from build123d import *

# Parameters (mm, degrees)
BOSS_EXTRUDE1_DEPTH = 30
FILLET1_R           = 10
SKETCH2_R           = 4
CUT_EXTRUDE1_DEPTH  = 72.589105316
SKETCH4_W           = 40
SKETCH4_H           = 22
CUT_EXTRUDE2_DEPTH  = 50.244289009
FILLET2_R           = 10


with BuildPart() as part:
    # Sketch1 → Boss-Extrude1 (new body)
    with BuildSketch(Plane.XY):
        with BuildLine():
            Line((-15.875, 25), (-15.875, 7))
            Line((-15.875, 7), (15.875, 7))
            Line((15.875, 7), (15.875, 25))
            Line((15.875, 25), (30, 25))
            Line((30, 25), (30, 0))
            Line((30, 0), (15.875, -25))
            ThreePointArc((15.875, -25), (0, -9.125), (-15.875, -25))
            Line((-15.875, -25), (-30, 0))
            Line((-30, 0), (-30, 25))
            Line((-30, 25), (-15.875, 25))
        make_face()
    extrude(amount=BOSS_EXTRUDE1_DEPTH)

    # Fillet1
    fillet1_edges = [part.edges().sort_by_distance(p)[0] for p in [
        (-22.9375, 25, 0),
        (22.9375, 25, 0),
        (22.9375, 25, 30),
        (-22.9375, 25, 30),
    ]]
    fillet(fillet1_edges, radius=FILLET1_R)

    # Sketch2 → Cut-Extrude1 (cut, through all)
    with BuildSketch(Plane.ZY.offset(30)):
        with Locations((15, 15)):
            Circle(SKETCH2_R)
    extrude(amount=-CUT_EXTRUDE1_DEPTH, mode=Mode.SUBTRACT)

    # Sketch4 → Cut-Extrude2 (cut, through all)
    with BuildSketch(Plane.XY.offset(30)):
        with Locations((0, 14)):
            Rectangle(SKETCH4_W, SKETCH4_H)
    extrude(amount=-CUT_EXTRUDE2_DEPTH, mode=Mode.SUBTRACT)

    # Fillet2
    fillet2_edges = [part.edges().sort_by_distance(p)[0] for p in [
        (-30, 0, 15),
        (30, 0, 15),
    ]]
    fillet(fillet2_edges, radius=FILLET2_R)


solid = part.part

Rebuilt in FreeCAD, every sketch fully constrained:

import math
import FreeCAD as App
import Part
import Sketcher
Q = App.Units.Quantity


def edges_at(feature, points):
    """Names of the edges that pass closest to the given points."""
    edges = feature.Shape.Edges
    near = lambda p: min(range(len(edges)), key=lambda i: edges[i].distToShape(Part.Vertex(*p))[0])
    return sorted({f"Edge{near(p) + 1}" for p in points})


def add_polygon(sketch, points):
    """Adds a closed chain of lines whose ends are joined by coincident constraints."""
    first, n = sketch.GeometryCount, len(points)
    for a, b in zip(points, points[1:] + points[:1]):
        sketch.addGeometry(Part.LineSegment(App.Vector(*a, 0), App.Vector(*b, 0)), False)
    for i in range(n):
        sketch.addConstraint(Sketcher.Constraint("Coincident", first + i, 2, first + (i + 1) % n, 1))

doc = App.newDocument("Part")
body = doc.addObject("PartDesign::Body", "Body")

# Sketch on XY plane
sketch1 = body.newObject("Sketcher::SketchObject", "Sketch")
sketch1.AttachmentSupport = (doc.getObject("XY_Plane"), [""])
sketch1.MapMode = "FlatFace"
sketch1.addGeometry([
    Part.LineSegment(App.Vector(-16, 7, 0), App.Vector(-16, 25, 0)),  # 0
    Part.LineSegment(App.Vector(-16, 25, 0), App.Vector(-30, 25, 0)),  # 1
    Part.LineSegment(App.Vector(-30, 25, 0), App.Vector(-30, 0, 0)),  # 2
    Part.LineSegment(App.Vector(-30, 0, 0), App.Vector(-16, -25, 0)),  # 3
    Part.ArcOfCircle(Part.Circle(App.Vector(0, -25, 0), App.Vector(0, 0, 1), 16), math.radians(0), math.radians(180)),  # 4
    Part.LineSegment(App.Vector(16, -25, 0), App.Vector(30, 0, 0)),  # 5
    Part.LineSegment(App.Vector(30, 0, 0), App.Vector(30, 25, 0)),  # 6
    Part.LineSegment(App.Vector(30, 25, 0), App.Vector(16, 25, 0)),  # 7
    Part.LineSegment(App.Vector(16, 25, 0), App.Vector(16, 7, 0)),  # 8
    Part.LineSegment(App.Vector(16, 7, 0), App.Vector(-16, 7, 0)),  # 9
], False)
sketch1.addConstraint([
    Sketcher.Constraint("Coincident", 0, 2, 1, 1),
    Sketcher.Constraint("Coincident", 1, 2, 2, 1),
    Sketcher.Constraint("Coincident", 2, 2, 3, 1),
    Sketcher.Constraint("Coincident", 3, 2, 4, 2),
    Sketcher.Constraint("Coincident", 4, 1, 5, 1),
    Sketcher.Constraint("Coincident", 5, 2, 6, 1),
    Sketcher.Constraint("Coincident", 6, 2, 7, 1),
    Sketcher.Constraint("Coincident", 7, 2, 8, 1),
    Sketcher.Constraint("Coincident", 8, 2, 9, 1),
    Sketcher.Constraint("Coincident", 9, 2, 0, 1),
    Sketcher.Constraint("Vertical", 0),
    Sketcher.Constraint("Horizontal", 1),
    Sketcher.Constraint("Vertical", 2),
    Sketcher.Constraint("Vertical", 6),
    Sketcher.Constraint("Horizontal", 7),
    Sketcher.Constraint("Vertical", 8),
    Sketcher.Constraint("Horizontal", 9),
    Sketcher.Constraint("Symmetric", 0, 2, 4, 1, -1, 1),
    Sketcher.Constraint("Symmetric", 2, 2, 5, 2, -1, 1),
    Sketcher.Constraint("Symmetric", 3, 2, 7, 2, -1, 1),
    Sketcher.Constraint("Symmetric", 3, 2, 4, 1, -2),
    Sketcher.Constraint("PointOnObject", 2, 2, -1),
    Sketcher.Constraint("Horizontal", 4, 3, 3, 2),
    Sketcher.Constraint("DistanceY", 0, 1, 0, 2, Q("18 mm")),
    Sketcher.Constraint("DistanceY", 2, 2, 2, 1, Q("25 mm")),
    Sketcher.Constraint("DistanceX", 1, 2, -1, 1, Q("30 mm")),
    Sketcher.Constraint("Radius", 4, Q("15.875 mm")),
])
pad1 = body.newObject("PartDesign::Pad", "Pad")
pad1.Profile = sketch1
pad1.Length = 30
doc.recompute()

fillet = body.newObject("PartDesign::Fillet", "Fillet")
fillet.Base = (pad1, edges_at(pad1, [
    (-22.938, 25, 0),
    (22.938, 25, 0),
    (22.938, 25, 30),
    (-22.938, 25, 30),
]))
fillet.Radius = 10

# Sketch on YZ plane
sketch2 = body.newObject("Sketcher::SketchObject", "Sketch001")
sketch2.AttachmentSupport = (doc.getObject("YZ_Plane"), [""])
sketch2.MapMode = "FlatFace"
sketch2.AttachmentOffset = App.Placement(App.Vector(0, 0, -30), App.Rotation())
sketch2.addGeometry(Part.Circle(App.Vector(15, 15, 0), App.Vector(0, 0, 1), 4), False)
sketch2.addConstraint([
    Sketcher.Constraint("Diameter", 0, Q("8 mm")),
    Sketcher.Constraint("DistanceX", -1, 1, 0, 3, Q("15 mm")),
    Sketcher.Constraint("DistanceY", -1, 1, 0, 3, Q("15 mm")),
])
pocket1 = body.newObject("PartDesign::Pocket", "Pocket")
pocket1.Profile = sketch2
pocket1.Type = "ThroughAll"
pocket1.Reversed = True

# Sketch on XY plane
sketch3 = body.newObject("Sketcher::SketchObject", "Sketch002")
sketch3.AttachmentSupport = (doc.getObject("XY_Plane"), [""])
sketch3.MapMode = "FlatFace"
sketch3.AttachmentOffset = App.Placement(App.Vector(0, 0, 30), App.Rotation())
add_polygon(sketch3, [(-20, 25), (-20, 3), (20, 3), (20, 25)])  # lines 0-3
sketch3.addConstraint([
    Sketcher.Constraint("Vertical", 0),
    Sketcher.Constraint("Horizontal", 1),
    Sketcher.Constraint("Vertical", 2),
    Sketcher.Constraint("Horizontal", 3),
    Sketcher.Constraint("DistanceX", 1, 1, 1, 2, Q("40 mm")),
    Sketcher.Constraint("DistanceY", 0, 2, 0, 1, Q("22 mm")),
    Sketcher.Constraint("DistanceX", 0, 2, -1, 1, Q("20 mm")),
    Sketcher.Constraint("DistanceY", -1, 1, 0, 2, Q("3 mm")),
])
pocket2 = body.newObject("PartDesign::Pocket", "Pocket001")
pocket2.Profile = sketch3
pocket2.Type = "ThroughAll"
doc.recompute()

fillet2 = body.newObject("PartDesign::Fillet", "Fillet001")
fillet2.Base = (pocket2, edges_at(pocket2, [(-30, 0, 15), (30, 0, 15)]))
fillet2.Radius = 10

doc.recompute()
